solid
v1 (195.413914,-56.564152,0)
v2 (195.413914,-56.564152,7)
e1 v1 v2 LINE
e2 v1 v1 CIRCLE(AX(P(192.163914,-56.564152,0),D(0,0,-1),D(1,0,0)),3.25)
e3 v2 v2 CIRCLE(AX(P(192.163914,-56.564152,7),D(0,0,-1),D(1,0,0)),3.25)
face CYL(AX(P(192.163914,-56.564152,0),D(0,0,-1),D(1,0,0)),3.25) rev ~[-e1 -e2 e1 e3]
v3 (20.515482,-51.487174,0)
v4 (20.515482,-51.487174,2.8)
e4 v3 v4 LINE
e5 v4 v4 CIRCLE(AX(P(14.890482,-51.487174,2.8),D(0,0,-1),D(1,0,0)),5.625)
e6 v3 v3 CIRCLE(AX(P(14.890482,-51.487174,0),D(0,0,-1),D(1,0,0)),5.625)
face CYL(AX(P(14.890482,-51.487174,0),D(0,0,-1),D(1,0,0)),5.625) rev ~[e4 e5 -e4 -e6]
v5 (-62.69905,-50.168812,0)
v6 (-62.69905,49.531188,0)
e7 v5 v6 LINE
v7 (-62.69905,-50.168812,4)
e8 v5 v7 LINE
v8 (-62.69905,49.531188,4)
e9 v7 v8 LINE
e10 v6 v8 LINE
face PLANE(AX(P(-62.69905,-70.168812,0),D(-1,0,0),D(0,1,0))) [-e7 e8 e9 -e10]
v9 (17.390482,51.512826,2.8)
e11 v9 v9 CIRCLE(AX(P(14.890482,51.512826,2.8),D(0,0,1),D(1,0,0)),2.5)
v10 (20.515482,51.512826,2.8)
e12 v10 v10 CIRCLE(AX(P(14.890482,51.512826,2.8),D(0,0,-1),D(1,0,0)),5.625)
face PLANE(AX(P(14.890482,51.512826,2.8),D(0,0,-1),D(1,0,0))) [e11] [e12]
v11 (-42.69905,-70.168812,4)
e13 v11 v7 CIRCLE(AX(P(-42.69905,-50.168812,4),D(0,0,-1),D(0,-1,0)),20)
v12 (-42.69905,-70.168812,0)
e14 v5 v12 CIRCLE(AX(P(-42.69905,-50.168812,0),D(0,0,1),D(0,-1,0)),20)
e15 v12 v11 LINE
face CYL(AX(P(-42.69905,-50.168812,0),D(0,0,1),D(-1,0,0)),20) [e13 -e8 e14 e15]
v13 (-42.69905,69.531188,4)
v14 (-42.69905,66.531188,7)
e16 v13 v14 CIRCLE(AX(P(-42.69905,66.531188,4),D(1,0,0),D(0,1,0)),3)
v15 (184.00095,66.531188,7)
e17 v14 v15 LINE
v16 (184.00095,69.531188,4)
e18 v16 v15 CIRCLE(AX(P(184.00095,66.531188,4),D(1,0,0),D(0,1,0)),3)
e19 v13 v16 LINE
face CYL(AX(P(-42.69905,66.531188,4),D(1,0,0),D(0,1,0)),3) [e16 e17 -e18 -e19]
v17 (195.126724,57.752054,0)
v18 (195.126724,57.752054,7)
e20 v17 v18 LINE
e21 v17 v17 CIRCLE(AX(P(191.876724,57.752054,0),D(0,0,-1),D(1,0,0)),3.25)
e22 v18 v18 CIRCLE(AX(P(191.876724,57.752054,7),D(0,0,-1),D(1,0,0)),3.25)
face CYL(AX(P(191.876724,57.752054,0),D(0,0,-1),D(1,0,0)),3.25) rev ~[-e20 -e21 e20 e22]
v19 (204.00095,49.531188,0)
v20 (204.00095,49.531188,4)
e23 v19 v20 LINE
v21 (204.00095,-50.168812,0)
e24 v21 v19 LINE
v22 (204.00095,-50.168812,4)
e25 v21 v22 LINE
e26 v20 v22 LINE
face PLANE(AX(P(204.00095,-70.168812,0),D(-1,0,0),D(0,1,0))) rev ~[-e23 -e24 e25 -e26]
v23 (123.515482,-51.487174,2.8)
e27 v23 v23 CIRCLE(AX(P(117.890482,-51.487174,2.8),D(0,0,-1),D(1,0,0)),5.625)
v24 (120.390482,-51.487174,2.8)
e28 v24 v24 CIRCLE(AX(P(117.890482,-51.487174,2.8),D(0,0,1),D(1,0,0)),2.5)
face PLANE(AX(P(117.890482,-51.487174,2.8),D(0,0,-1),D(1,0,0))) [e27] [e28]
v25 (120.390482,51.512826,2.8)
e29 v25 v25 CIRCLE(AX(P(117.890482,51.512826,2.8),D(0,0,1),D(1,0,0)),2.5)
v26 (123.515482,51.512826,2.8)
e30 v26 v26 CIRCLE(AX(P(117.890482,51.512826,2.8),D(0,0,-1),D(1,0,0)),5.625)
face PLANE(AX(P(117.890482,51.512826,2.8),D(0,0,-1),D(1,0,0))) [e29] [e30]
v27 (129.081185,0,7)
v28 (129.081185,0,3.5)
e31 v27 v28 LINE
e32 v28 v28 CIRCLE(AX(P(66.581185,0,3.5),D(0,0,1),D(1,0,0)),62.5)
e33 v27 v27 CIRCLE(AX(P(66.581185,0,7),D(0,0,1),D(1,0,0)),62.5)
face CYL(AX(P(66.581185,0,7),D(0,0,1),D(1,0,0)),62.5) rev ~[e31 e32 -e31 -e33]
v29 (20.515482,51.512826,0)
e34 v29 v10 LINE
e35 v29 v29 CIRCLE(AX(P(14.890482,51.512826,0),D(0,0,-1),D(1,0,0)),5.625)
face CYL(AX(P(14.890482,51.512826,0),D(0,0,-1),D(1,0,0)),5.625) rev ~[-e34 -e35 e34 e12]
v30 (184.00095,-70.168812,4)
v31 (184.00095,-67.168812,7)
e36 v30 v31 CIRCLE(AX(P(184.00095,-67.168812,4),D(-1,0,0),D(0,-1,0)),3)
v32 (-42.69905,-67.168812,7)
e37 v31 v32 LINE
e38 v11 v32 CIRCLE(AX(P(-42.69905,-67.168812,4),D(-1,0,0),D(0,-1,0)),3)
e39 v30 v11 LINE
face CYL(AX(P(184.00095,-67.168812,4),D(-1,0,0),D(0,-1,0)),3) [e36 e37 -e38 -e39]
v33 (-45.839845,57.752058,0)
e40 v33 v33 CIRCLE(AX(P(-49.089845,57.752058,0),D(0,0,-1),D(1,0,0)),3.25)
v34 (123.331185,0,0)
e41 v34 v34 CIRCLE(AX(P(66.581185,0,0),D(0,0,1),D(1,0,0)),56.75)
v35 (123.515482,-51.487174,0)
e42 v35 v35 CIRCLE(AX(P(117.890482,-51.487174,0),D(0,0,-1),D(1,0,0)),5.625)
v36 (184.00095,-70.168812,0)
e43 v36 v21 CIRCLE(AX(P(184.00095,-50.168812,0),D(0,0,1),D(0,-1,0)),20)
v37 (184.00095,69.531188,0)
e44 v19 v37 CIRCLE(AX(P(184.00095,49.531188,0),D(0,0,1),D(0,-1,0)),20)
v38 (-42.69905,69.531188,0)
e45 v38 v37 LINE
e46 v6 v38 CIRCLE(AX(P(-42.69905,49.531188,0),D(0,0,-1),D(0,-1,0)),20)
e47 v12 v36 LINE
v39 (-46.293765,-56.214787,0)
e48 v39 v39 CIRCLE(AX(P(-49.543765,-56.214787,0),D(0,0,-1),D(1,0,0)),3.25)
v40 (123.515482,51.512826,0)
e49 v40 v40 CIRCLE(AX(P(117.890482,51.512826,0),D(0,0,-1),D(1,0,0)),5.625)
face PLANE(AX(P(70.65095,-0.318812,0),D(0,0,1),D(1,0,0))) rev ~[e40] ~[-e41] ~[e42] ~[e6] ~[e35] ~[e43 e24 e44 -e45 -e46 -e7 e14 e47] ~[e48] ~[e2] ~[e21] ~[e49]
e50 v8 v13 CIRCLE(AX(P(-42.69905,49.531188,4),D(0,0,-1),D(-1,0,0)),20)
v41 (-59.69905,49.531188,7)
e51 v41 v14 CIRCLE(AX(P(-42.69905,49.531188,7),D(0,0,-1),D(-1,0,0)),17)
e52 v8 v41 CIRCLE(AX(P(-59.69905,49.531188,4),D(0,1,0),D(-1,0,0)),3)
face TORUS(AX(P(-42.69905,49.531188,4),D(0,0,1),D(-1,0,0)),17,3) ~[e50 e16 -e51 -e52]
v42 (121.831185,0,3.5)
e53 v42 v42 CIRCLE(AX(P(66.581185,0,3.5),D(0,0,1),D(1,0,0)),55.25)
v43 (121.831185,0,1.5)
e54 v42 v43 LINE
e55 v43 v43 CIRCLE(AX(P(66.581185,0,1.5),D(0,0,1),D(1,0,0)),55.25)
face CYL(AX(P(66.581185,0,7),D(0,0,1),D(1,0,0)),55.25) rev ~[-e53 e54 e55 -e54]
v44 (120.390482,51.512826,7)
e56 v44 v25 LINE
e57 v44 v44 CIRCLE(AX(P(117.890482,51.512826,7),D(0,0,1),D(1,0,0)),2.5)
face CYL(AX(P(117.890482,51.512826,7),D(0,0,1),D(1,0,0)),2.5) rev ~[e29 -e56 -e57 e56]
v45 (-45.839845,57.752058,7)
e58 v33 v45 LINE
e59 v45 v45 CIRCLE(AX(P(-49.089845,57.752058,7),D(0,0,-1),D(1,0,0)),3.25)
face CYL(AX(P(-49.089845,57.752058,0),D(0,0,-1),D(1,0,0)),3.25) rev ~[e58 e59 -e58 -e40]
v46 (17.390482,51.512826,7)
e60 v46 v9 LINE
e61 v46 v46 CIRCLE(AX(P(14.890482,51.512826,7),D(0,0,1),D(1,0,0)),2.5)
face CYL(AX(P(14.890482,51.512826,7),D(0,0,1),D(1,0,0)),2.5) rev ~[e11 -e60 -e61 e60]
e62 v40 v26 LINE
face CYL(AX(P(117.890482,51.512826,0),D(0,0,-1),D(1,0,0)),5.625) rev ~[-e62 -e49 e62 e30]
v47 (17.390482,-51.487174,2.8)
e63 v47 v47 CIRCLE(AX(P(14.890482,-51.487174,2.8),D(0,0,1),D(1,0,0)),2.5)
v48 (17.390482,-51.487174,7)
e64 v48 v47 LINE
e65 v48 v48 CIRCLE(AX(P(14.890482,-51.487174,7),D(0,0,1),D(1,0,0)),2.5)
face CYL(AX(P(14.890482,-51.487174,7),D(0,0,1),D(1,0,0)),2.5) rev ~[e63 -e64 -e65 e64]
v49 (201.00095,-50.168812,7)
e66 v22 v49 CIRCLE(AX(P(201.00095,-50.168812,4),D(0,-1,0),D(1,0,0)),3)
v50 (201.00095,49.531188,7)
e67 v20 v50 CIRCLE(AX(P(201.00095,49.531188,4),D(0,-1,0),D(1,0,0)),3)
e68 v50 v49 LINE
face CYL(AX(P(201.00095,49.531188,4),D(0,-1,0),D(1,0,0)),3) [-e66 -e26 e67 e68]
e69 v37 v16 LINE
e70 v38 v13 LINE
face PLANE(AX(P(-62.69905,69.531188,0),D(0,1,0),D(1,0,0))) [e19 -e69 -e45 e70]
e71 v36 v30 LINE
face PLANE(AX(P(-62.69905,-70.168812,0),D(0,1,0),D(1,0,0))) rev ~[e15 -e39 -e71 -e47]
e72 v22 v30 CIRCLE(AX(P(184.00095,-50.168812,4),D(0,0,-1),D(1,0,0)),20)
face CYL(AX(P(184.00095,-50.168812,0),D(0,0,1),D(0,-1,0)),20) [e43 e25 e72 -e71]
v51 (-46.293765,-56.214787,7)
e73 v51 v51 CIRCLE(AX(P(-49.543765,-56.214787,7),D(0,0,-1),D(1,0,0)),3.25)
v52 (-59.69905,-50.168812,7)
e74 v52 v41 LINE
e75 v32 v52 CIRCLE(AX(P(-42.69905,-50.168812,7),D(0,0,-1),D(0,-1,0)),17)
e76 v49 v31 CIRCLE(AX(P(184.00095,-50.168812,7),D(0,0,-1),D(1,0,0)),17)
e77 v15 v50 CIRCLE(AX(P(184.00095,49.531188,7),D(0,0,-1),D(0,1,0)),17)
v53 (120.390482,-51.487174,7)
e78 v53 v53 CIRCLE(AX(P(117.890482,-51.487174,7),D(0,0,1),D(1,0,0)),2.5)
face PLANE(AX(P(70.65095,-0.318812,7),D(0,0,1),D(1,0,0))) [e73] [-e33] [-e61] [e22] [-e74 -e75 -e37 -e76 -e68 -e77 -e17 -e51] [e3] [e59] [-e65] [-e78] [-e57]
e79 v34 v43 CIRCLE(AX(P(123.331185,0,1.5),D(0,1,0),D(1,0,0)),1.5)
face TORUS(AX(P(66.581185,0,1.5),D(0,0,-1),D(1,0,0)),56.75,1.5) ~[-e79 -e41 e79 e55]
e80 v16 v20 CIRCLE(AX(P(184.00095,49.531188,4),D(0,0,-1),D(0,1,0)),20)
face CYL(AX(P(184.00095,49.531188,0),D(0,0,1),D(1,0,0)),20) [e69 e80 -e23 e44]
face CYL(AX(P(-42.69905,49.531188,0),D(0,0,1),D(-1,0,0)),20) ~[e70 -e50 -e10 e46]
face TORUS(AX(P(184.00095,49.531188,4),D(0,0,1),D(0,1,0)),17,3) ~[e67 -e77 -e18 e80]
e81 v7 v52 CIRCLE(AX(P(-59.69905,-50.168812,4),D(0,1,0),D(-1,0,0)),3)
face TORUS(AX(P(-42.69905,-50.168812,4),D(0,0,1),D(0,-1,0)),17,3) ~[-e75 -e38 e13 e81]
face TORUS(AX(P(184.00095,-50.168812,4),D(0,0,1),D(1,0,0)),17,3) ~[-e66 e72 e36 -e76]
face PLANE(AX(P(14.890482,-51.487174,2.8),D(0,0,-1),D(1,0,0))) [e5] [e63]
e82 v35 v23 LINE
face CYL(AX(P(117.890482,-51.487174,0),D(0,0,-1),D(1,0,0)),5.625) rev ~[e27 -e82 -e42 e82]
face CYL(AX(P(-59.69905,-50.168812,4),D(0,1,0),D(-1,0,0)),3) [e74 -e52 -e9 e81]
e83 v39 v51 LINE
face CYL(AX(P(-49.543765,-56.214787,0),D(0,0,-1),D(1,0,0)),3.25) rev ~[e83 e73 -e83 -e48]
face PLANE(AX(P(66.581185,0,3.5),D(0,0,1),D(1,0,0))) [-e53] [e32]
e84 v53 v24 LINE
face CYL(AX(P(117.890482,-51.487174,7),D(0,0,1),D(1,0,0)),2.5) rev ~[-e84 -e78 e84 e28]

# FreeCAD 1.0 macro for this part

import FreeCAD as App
import Part
import Sketcher

V = App.Vector
Q = App.Units.Quantity


def edges_at(feature, points):
    """Names of the edges that pass closest to the given points."""
    edges = feature.Shape.Edges
    near = lambda p: min(range(len(edges)), key=lambda i: edges[i].distToShape(Part.Vertex(*p))[0])
    return sorted({f"Edge{near(p) + 1}" for p in points})

doc = App.newDocument("Part")
body = doc.addObject("PartDesign::Body", "Body")

sketch1 = doc.addObject("Sketcher::SketchObject", "Sketch")
body.addObject(sketch1)
sketch1.AttachmentSupport = (doc.XY_Plane, [""])
sketch1.MapMode = "FlatFace"
sketch1.addGeometry(Part.LineSegment(V(-63, 70, 0), V(-63, -70, 0)), False)
sketch1.addGeometry(Part.LineSegment(V(-63, -70, 0), V(204, -70, 0)), False)
sketch1.addGeometry(Part.LineSegment(V(204, -70, 0), V(204, 70, 0)), False)
sketch1.addGeometry(Part.LineSegment(V(204, 70, 0), V(-63, 70, 0)), False)
sketch1.addConstraint(Sketcher.Constraint("Coincident", 0, 2, 1, 1))
sketch1.addConstraint(Sketcher.Constraint("Coincident", 1, 2, 2, 1))
sketch1.addConstraint(Sketcher.Constraint("Coincident", 2, 2, 3, 1))
sketch1.addConstraint(Sketcher.Constraint("Coincident", 3, 2, 0, 1))
sketch1.addConstraint(Sketcher.Constraint("Vertical", 0))
sketch1.addConstraint(Sketcher.Constraint("Horizontal", 1))
sketch1.addConstraint(Sketcher.Constraint("Vertical", 2))
sketch1.addConstraint(Sketcher.Constraint("Horizontal", 3))
sketch1.addConstraint(Sketcher.Constraint("DistanceX", 1, 1, 1, 2, Q("266.7 mm")))
sketch1.addConstraint(Sketcher.Constraint("DistanceY", 0, 2, 0, 1, Q("139.7 mm")))
sketch1.addConstraint(Sketcher.Constraint("DistanceX", 0, 2, -1, 1, Q("62.69905 mm")))
sketch1.addConstraint(Sketcher.Constraint("DistanceY", -1, 1, 2, 2, Q("69.531188 mm")))
pad1 = doc.addObject("PartDesign::Pad", "Pad")
body.addObject(pad1)
pad1.Profile = sketch1
pad1.Length = 7
doc.recompute()

fillet = doc.addObject("PartDesign::Fillet", "Fillet")
body.addObject(fillet)
fillet.Base = (pad1, edges_at(pad1, [
    (-62.699, 69.531, 3.5),
    (204.001, 69.531, 3.5),
    (-62.699, -70.169, 3.5),
    (204.001, -70.169, 3.5),
]))
fillet.Radius = 20

sketch2 = doc.addObject("Sketcher::SketchObject", "Sketch001")
body.addObject(sketch2)
sketch2.AttachmentSupport = (doc.XY_Plane, [""])
sketch2.MapMode = "FlatFace"
sketch2.AttachmentOffset = App.Placement(V(0, 0, 7), App.Rotation())
sketch2.addGeometry(Part.Circle(V(67, 0, 0), V(0, 0, 1), 62), False)
sketch2.addGeometry(Part.Circle(V(67, 0, 0), V(0, 0, 1), 55), False)
sketch2.addConstraint(Sketcher.Constraint("Coincident", 1, 3, 0, 3))
sketch2.addConstraint(Sketcher.Constraint("PointOnObject", 0, 3, -1))
sketch2.addConstraint(Sketcher.Constraint("Diameter", 0, Q("125 mm")))
sketch2.addConstraint(Sketcher.Constraint("Diameter", 1, Q("110.5 mm")))
sketch2.addConstraint(Sketcher.Constraint("DistanceX", -1, 1, 0, 3, Q("66.581185 mm")))
pocket1 = doc.addObject("PartDesign::Pocket", "Pocket")
body.addObject(pocket1)
pocket1.Profile = sketch2
pocket1.Length = 3.5

sketch3 = doc.addObject("Sketcher::SketchObject", "Sketch002")
body.addObject(sketch3)
sketch3.AttachmentSupport = (doc.XY_Plane, [""])
sketch3.MapMode = "FlatFace"
sketch3.AttachmentOffset = App.Placement(V(0, 0, 7), App.Rotation())
sketch3.addGeometry(Part.Circle(V(67, 0, 0), V(0, 0, 1), 55), False)
sketch3.addConstraint(Sketcher.Constraint("PointOnObject", 0, 3, -1))
sketch3.addConstraint(Sketcher.Constraint("Diameter", 0, Q("110.5 mm")))
sketch3.addConstraint(Sketcher.Constraint("DistanceX", -1, 1, 0, 3, Q("66.581185 mm")))
pocket2 = doc.addObject("PartDesign::Pocket", "Pocket001")
body.addObject(pocket2)
pocket2.Profile = sketch3
pocket2.Length = 10

sketch4 = doc.addObject("Sketcher::SketchObject", "Sketch003")
body.addObject(sketch4)
sketch4.AttachmentSupport = (doc.XY_Plane, [""])
sketch4.MapMode = "FlatFace"
sketch4.addGeometry(Part.Circle(V(-49.5, -56.2, 0), V(0, 0, 1), 3.2), False)
sketch4.addGeometry(Part.Circle(V(192.2, -56.6, 0), V(0, 0, 1), 3.2), False)
sketch4.addGeometry(Part.Circle(V(191.9, 57.8, 0), V(0, 0, 1), 3.2), False)
sketch4.addGeometry(Part.Circle(V(-49.1, 57.8, 0), V(0, 0, 1), 3.2), False)
sketch4.addConstraint(Sketcher.Constraint("Equal", 0, 1))
sketch4.addConstraint(Sketcher.Constraint("Equal", 1, 2))
sketch4.addConstraint(Sketcher.Constraint("Equal", 2, 3))
sketch4.addConstraint(Sketcher.Constraint("Diameter", 0, Q("6.5 mm")))
sketch4.addConstraint(Sketcher.Constraint("DistanceX", 0, 3, 1, 3, Q("241.707679 mm")))
sketch4.addConstraint(Sketcher.Constraint("DistanceX", 2, 3, 1, 3, Q("0.28719 mm")))
sketch4.addConstraint(Sketcher.Constraint("DistanceY", 0, 3, 2, 3, Q("113.966841 mm")))
sketch4.addConstraint(Sketcher.Constraint("DistanceX", 0, 3, 3, 3, Q("0.45392 mm")))
sketch4.addConstraint(Sketcher.Constraint("DistanceY", 1, 3, 3, 3, Q("114.31621 mm")))
sketch4.addConstraint(Sketcher.Constraint("DistanceX", 0, 3, -1, 1, Q("49.543765 mm")))
sketch4.addConstraint(Sketcher.Constraint("DistanceY", 0, 3, -1, 1, Q("56.214787 mm")))
sketch4.addConstraint(Sketcher.Constraint("DistanceY", 1, 3, -1, 1, Q("56.564152 mm")))
pocket3 = doc.addObject("PartDesign::Pocket", "Pocket002")
body.addObject(pocket3)
pocket3.Profile = sketch4
pocket3.Length = 8
pocket3.Reversed = True

sketch5 = doc.addObject("Sketcher::SketchObject", "Sketch004")
body.addObject(sketch5)
sketch5.AttachmentSupport = (doc.XY_Plane, [""])
sketch5.MapMode = "FlatFace"
sketch5.AttachmentOffset = App.Placement(V(0, 0, 7), App.Rotation())
sketch5.addGeometry(Part.Circle(V(14.9, 51.5, 0), V(0, 0, 1), 2.5), False)
sketch5.addGeometry(Part.Circle(V(117.9, 51.5, 0), V(0, 0, 1), 2.5), False)
sketch5.addGeometry(Part.Circle(V(117.9, -51.5, 0), V(0, 0, 1), 2.5), False)
sketch5.addGeometry(Part.Circle(V(14.9, -51.5, 0), V(0, 0, 1), 2.5), False)
sketch5.addConstraint(Sketcher.Constraint("Equal", 0, 1))
sketch5.addConstraint(Sketcher.Constraint("Equal", 1, 2))
sketch5.addConstraint(Sketcher.Constraint("Equal", 2, 3))
sketch5.addConstraint(Sketcher.Constraint("Horizontal", 0, 3, 1, 3))
sketch5.addConstraint(Sketcher.Constraint("Horizontal", 2, 3, 3, 3))
sketch5.addConstraint(Sketcher.Constraint("Vertical", 1, 3, 2, 3))
sketch5.addConstraint(Sketcher.Constraint("Vertical", 0, 3, 3, 3))
sketch5.addConstraint(Sketcher.Constraint("Diameter", 0, Q("5 mm")))
sketch5.addConstraint(Sketcher.Constraint("DistanceX", 0, 3, 1, 3, Q("103 mm")))
sketch5.addConstraint(Sketcher.Constraint("DistanceY", 2, 3, 1, 3, Q("103 mm")))
sketch5.addConstraint(Sketcher.Constraint("DistanceX", -1, 1, 0, 3, Q("14.890482 mm")))
sketch5.addConstraint(Sketcher.Constraint("DistanceY", -1, 1, 0, 3, Q("51.512826 mm")))
pocket4 = doc.addObject("PartDesign::Pocket", "Pocket003")
body.addObject(pocket4)
pocket4.Profile = sketch5
pocket4.Length = 8

sketch6 = doc.addObject("Sketcher::SketchObject", "Sketch005")
body.addObject(sketch6)
sketch6.AttachmentSupport = (doc.XY_Plane, [""])
sketch6.MapMode = "FlatFace"
sketch6.addGeometry(Part.Circle(V(15, -51, 0), V(0, 0, 1), 6), False)
sketch6.addGeometry(Part.Circle(V(118, -51, 0), V(0, 0, 1), 6), False)
sketch6.addGeometry(Part.Circle(V(118, 52, 0), V(0, 0, 1), 6), False)
sketch6.addGeometry(Part.Circle(V(15, 52, 0), V(0, 0, 1), 6), False)
sketch6.addConstraint(Sketcher.Constraint("Equal", 0, 1))
sketch6.addConstraint(Sketcher.Constraint("Equal", 1, 2))
sketch6.addConstraint(Sketcher.Constraint("Equal", 2, 3))
sketch6.addConstraint(Sketcher.Constraint("Horizontal", 0, 3, 1, 3))
sketch6.addConstraint(Sketcher.Constraint("Horizontal", 2, 3, 3, 3))
sketch6.addConstraint(Sketcher.Constraint("Vertical", 1, 3, 2, 3))
sketch6.addConstraint(Sketcher.Constraint("Vertical", 0, 3, 3, 3))
sketch6.addConstraint(Sketcher.Constraint("Diameter", 0, Q("11.25 mm")))
sketch6.addConstraint(Sketcher.Constraint("DistanceX", 0, 3, 1, 3, Q("103 mm")))
sketch6.addConstraint(Sketcher.Constraint("DistanceY", 1, 3, 2, 3, Q("103 mm")))
sketch6.addConstraint(Sketcher.Constraint("DistanceX", -1, 1, 0, 3, Q("14.890482 mm")))
sketch6.addConstraint(Sketcher.Constraint("DistanceY", 0, 3, -1, 1, Q("51.487174 mm")))
pocket5 = doc.addObject("PartDesign::Pocket", "Pocket004")
body.addObject(pocket5)
pocket5.Profile = sketch6
pocket5.Length = 2.8
pocket5.Reversed = True
doc.recompute()

fillet2 = doc.addObject("PartDesign::Fillet", "Fillet001")
body.addObject(fillet2)
fillet2.Base = (pocket5, edges_at(pocket5, [(11.331, 0, 0)]))
fillet2.Radius = 1.5
doc.recompute()

fillet3 = doc.addObject("PartDesign::Fillet", "Fillet002")
body.addObject(fillet3)
fillet3.Base = (fillet2, edges_at(fillet2, [(70.651, 69.531, 7)]))
fillet3.Radius = 3

doc.recompute()
